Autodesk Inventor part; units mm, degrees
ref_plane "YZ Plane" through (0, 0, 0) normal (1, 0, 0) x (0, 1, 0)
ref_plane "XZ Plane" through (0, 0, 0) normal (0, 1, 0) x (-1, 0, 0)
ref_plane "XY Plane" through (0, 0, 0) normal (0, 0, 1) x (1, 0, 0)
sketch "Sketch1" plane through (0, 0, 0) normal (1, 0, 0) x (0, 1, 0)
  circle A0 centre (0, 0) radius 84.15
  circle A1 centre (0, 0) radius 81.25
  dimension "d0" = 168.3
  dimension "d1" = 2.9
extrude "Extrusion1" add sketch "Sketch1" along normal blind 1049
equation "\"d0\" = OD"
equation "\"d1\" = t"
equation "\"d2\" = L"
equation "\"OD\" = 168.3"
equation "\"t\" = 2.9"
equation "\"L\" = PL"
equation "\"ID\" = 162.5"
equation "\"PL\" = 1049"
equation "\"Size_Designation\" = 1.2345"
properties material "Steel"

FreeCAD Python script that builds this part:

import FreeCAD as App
import Part
import Sketcher

V = App.Vector

doc = App.newDocument("Part")
body = doc.addObject("PartDesign::Body", "Body")

# Sketch on YZ plane
sketch1 = doc.addObject("Sketcher::SketchObject", "Sketch")
body.addObject(sketch1)
sketch1.AttachmentSupport = (doc.YZ_Plane, [""])
sketch1.MapMode = "FlatFace"
sketch1.addGeometry([
    Part.Circle(V(0, 0, 0), V(0, 0, 1), 84),
    Part.Circle(V(0, 0, 0), V(0, 0, 1), 81),
], False)
sketch1.addConstraint([
    Sketcher.Constraint("Coincident", 0, 3, -1, 1),
    Sketcher.Constraint("Coincident", 1, 3, -1, 1),
    Sketcher.Constraint("Diameter", 0, 168.3),
    Sketcher.Constraint("Diameter", 1, 162.5),
])
pad1 = doc.addObject("PartDesign::Pad", "Pad")
body.addObject(pad1)
pad1.Profile = sketch1
pad1.Length = 1049

doc.recompute()
